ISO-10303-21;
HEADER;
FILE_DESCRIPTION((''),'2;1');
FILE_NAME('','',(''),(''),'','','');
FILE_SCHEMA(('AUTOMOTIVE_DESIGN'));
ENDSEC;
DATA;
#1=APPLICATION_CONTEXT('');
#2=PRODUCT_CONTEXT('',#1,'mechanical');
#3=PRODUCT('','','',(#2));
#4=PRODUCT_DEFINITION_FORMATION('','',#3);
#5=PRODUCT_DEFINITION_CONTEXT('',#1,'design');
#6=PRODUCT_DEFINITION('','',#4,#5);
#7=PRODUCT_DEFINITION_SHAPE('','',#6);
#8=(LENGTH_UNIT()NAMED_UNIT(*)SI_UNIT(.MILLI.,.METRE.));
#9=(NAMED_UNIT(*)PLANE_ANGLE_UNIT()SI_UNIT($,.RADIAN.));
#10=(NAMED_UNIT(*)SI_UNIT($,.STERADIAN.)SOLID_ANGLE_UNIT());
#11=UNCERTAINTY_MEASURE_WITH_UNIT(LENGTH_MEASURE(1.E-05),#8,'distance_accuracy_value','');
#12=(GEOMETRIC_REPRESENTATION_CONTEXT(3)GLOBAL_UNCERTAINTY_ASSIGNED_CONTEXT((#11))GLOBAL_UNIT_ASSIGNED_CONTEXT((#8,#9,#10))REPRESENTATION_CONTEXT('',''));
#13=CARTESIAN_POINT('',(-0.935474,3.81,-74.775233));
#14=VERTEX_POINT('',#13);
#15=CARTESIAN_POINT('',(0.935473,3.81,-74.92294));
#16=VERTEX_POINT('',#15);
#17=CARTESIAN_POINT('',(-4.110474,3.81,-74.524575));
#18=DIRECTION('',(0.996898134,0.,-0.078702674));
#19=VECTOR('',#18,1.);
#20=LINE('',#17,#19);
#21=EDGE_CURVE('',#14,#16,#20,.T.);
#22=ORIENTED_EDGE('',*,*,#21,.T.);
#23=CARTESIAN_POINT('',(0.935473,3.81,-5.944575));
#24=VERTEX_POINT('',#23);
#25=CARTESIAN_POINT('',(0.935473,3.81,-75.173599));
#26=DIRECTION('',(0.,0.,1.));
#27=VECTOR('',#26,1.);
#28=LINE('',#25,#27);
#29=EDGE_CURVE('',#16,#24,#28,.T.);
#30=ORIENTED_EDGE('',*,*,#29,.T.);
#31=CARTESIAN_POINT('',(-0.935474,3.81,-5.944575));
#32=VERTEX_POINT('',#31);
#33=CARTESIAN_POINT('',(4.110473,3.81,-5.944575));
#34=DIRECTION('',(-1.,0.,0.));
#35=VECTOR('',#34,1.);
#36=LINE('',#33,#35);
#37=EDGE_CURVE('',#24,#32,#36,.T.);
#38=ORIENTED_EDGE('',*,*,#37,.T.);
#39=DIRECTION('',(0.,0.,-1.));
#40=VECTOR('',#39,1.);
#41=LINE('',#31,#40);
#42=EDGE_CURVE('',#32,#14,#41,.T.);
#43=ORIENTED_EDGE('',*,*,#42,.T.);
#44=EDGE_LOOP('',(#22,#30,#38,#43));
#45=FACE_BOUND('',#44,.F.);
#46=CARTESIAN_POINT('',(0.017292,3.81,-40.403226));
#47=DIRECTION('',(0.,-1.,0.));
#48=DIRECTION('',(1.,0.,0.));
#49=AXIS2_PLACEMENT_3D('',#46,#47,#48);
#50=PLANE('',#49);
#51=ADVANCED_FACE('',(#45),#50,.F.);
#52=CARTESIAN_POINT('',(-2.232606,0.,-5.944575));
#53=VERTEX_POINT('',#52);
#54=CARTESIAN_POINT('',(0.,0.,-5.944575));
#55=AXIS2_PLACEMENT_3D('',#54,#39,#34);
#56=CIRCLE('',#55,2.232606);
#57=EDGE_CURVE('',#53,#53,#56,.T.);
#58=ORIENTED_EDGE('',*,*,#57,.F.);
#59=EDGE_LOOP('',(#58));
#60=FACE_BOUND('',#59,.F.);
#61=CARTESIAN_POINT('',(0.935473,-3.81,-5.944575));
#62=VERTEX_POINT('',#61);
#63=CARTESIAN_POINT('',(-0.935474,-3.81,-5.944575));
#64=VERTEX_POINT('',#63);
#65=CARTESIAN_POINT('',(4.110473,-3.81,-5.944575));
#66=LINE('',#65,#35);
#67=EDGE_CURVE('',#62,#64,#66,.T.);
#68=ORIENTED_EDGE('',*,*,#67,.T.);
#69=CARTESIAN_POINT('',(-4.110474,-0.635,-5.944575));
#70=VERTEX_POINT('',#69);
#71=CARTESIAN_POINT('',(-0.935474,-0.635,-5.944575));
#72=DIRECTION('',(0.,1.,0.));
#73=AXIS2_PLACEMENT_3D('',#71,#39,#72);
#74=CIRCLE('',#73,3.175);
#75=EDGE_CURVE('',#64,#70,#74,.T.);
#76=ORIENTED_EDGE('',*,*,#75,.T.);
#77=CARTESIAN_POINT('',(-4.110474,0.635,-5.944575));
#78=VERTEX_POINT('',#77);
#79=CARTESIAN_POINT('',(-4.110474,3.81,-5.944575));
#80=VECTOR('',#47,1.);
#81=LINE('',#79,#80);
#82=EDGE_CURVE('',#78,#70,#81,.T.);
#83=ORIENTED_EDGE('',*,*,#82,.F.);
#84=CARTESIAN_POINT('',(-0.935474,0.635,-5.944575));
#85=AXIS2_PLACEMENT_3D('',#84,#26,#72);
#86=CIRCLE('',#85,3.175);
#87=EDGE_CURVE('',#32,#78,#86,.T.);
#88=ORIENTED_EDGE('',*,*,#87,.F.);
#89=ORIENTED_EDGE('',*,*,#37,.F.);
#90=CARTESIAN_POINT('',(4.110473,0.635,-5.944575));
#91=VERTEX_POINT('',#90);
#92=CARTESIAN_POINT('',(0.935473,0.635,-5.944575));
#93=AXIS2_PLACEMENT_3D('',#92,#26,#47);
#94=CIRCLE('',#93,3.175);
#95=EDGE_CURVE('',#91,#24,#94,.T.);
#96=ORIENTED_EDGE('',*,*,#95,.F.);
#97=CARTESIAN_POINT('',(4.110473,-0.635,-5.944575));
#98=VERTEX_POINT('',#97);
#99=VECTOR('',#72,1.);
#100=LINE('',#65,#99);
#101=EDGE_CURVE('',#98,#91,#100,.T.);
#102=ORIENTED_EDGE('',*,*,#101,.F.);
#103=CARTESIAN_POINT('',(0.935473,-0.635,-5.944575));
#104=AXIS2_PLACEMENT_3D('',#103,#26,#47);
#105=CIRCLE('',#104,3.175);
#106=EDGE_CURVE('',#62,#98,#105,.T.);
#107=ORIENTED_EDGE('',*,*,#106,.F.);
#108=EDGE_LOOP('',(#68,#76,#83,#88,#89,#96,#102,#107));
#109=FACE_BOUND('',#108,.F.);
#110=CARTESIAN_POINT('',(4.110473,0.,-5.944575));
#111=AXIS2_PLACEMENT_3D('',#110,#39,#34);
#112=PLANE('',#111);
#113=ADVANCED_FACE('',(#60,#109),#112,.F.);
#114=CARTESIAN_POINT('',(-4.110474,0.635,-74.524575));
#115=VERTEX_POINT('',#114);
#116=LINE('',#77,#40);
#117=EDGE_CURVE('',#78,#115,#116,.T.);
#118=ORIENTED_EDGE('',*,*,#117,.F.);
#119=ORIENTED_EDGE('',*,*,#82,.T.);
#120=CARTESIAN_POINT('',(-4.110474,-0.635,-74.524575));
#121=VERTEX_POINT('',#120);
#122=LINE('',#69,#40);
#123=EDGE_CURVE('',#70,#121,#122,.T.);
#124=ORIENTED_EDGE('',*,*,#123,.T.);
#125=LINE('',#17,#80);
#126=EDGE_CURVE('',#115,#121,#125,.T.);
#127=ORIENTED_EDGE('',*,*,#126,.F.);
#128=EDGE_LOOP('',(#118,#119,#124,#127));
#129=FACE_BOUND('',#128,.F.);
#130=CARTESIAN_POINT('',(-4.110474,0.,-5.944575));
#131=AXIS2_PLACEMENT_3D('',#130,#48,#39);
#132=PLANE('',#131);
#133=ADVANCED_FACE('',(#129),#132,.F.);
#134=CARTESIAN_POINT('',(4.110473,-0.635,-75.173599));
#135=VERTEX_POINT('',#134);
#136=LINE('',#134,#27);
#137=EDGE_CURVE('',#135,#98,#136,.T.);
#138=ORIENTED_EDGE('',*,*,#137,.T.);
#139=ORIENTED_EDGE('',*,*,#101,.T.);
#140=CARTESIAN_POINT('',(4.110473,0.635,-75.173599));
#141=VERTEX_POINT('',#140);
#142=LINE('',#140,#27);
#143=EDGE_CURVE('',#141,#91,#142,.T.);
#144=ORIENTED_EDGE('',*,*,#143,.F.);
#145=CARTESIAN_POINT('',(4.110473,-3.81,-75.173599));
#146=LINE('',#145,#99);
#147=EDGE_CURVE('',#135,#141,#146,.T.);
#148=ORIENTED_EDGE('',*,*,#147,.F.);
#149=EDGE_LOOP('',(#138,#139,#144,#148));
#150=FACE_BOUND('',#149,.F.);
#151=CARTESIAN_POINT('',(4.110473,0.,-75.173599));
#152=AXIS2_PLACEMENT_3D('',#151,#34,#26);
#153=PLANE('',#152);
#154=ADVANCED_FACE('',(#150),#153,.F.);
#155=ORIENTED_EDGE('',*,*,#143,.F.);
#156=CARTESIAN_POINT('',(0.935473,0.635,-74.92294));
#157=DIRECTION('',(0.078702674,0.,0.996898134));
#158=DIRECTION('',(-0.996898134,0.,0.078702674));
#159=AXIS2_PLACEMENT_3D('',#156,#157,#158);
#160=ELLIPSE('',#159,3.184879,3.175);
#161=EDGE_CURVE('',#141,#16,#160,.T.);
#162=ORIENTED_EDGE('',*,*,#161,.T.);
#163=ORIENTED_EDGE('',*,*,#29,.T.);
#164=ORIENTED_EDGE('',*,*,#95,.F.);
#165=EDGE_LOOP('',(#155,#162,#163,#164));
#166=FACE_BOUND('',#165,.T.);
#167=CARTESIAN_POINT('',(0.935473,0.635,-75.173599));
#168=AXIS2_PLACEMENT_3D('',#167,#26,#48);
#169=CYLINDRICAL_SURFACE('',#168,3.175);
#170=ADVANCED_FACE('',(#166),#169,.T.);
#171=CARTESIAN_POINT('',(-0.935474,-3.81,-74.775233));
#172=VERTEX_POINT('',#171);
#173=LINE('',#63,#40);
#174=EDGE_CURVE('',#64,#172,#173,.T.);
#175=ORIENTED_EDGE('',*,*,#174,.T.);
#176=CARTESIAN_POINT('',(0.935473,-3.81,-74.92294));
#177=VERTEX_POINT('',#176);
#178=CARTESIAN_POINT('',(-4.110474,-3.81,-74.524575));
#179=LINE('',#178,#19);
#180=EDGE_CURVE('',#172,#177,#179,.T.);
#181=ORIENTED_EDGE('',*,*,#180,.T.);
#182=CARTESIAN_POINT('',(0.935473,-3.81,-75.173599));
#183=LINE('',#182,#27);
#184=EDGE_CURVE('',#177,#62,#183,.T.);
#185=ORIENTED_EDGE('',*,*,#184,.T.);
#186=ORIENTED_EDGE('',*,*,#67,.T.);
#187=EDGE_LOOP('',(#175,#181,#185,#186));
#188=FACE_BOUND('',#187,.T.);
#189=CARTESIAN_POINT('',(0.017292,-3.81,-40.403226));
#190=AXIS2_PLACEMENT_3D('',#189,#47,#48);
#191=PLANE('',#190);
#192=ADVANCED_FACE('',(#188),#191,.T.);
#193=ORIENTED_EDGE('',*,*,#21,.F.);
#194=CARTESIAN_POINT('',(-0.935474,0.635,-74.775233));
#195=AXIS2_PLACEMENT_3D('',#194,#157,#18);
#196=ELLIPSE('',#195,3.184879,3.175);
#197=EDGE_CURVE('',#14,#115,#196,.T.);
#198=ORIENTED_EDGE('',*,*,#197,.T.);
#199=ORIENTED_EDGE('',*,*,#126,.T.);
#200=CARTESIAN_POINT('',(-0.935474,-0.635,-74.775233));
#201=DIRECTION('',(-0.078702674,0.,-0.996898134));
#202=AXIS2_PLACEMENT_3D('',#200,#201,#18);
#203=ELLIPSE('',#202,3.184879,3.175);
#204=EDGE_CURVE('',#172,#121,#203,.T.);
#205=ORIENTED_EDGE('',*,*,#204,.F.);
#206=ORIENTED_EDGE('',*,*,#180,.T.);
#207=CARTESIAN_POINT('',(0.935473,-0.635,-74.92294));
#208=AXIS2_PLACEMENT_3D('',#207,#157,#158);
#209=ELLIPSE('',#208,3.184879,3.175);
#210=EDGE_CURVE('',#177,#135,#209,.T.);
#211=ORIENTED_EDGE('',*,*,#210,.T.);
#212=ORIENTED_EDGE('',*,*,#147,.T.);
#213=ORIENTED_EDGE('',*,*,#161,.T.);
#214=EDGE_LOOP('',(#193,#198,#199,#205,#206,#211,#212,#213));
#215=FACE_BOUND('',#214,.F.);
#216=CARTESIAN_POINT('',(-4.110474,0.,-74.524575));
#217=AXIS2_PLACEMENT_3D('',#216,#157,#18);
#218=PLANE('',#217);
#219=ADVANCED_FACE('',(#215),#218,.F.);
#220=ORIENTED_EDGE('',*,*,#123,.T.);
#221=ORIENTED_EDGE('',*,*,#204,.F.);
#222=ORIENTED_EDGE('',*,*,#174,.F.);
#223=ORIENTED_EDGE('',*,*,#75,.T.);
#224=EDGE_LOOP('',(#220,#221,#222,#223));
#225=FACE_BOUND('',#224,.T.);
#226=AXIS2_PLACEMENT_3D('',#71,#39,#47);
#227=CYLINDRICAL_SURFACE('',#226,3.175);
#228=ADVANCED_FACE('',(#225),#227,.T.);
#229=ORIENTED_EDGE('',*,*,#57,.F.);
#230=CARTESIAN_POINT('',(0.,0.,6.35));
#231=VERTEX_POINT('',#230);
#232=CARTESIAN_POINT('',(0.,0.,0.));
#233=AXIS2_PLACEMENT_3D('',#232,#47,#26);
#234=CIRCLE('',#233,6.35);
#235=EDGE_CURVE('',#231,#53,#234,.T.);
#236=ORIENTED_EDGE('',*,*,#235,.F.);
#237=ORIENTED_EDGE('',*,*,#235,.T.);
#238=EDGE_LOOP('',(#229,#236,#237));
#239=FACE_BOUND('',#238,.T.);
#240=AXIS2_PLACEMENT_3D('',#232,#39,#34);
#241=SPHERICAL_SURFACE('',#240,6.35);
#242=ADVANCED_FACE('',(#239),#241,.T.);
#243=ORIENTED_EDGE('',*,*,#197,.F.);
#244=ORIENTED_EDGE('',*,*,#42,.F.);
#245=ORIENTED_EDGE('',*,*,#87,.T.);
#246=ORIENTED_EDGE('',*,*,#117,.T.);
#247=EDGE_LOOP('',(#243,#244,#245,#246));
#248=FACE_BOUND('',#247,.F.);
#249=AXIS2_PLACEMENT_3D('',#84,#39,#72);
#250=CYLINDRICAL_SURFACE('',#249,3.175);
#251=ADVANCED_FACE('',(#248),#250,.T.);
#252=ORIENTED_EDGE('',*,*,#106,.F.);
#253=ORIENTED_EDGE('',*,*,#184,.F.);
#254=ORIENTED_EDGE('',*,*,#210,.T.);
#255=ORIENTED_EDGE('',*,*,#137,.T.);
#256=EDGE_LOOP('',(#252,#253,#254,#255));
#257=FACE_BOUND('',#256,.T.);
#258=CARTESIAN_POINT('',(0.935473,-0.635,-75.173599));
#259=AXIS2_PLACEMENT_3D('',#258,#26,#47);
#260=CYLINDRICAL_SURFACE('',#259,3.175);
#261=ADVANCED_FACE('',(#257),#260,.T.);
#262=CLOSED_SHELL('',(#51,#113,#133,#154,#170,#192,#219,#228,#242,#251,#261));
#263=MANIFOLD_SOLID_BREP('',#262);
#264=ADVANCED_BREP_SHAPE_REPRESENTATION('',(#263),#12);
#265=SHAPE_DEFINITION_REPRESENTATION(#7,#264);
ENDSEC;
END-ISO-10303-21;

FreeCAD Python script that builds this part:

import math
import FreeCAD as App
import Part
import Sketcher
from FreeCAD import Vector
Q = App.Units.Quantity


def edges_at(feature, points):
    """Names of the edges that pass closest to the given points."""
    edges = feature.Shape.Edges
    near = lambda p: min(range(len(edges)), key=lambda i: edges[i].distToShape(Part.Vertex(*p))[0])
    return sorted({f"Edge{near(p) + 1}" for p in points})

doc = App.newDocument("Part")
body = doc.addObject("PartDesign::Body", "Body")

# Sketch on XZ plane
sketch1 = body.newObject("Sketcher::SketchObject", "Sketch")
sketch1.AttachmentSupport = (doc.getObject("XZ_Plane"), [""])
sketch1.MapMode = "FlatFace"
sketch1.addGeometry(Part.LineSegment(Vector(0, -6, 0), Vector(0, 6, 0)), False)
sketch1.addGeometry(Part.ArcOfCircle(Part.Circle(Vector(0, 0, 0), Vector(0, 0, 1), 6), math.radians(90), math.radians(270)), False)
sketch1.addConstraint(Sketcher.Constraint("Coincident", 0, 1, 1, 2))
sketch1.addConstraint(Sketcher.Constraint("Coincident", 1, 1, 0, 2))
sketch1.addConstraint(Sketcher.Constraint("Vertical", 0))
sketch1.addConstraint(Sketcher.Constraint("Coincident", 1, 3, -1, 1))
sketch1.addConstraint(Sketcher.Constraint("PointOnObject", 0, 1, -2))
sketch1.addConstraint(Sketcher.Constraint("Radius", 1, Q("0.25 in")))
revolution = body.newObject("PartDesign::Revolution", "Revolution")
revolution.Profile = sketch1
revolution.ReferenceAxis = (sketch1, ["V_Axis"])
revolution.Angle = 360

# Sketch on XZ plane
sketch2 = body.newObject("Sketcher::SketchObject", "Sketch001")
sketch2.AttachmentSupport = (doc.getObject("XZ_Plane"), [""])
sketch2.MapMode = "FlatFace"
sketch2.addGeometry(Part.LineSegment(Vector(4, -6, 0), Vector(-4, -6, 0)), False)
sketch2.addGeometry(Part.LineSegment(Vector(-4, -6, 0), Vector(-4, -75, 0)), False)
sketch2.addGeometry(Part.LineSegment(Vector(-4, -75, 0), Vector(4, -75, 0)), False)
sketch2.addGeometry(Part.LineSegment(Vector(4, -75, 0), Vector(4, -6, 0)), False)
sketch2.addConstraint(Sketcher.Constraint("Coincident", 0, 2, 1, 1))
sketch2.addConstraint(Sketcher.Constraint("Coincident", 1, 2, 2, 1))
sketch2.addConstraint(Sketcher.Constraint("Coincident", 2, 2, 3, 1))
sketch2.addConstraint(Sketcher.Constraint("Coincident", 3, 2, 0, 1))
sketch2.addConstraint(Sketcher.Constraint("Horizontal", 0))
sketch2.addConstraint(Sketcher.Constraint("Vertical", 1))
sketch2.addConstraint(Sketcher.Constraint("Vertical", 3))
sketch2.addConstraint(Sketcher.Constraint("DistanceY", 1, 2, 1, 1, Q("2.7 in")))
sketch2.addConstraint(Sketcher.Constraint("DistanceY", 2, 2, -1, 1, Q("75.173599 mm")))
sketch2.addConstraint(Sketcher.Constraint("DistanceX", 0, 2, 0, 1, Q("8.220947 mm")))
sketch2.addConstraint(Sketcher.Constraint("DistanceY", 3, 1, 3, 2, Q("69.229024 mm")))
sketch2.addConstraint(Sketcher.Constraint("DistanceX", 0, 2, -1, 1, Q("4.110474 mm")))
pad1 = body.newObject("PartDesign::Pad", "Pad")
pad1.Profile = sketch2
pad1.Type = "TwoLengths"
pad1.Length = Q("0.15 in")
pad1.Length2 = Q("0.15 in")
pad1.Reversed = True
doc.recompute()

fillet = body.newObject("PartDesign::Fillet", "Fillet")
fillet.Base = (pad1, edges_at(pad1, [
    (4.11, -3.81, -40.559),
    (4.11, 3.81, -40.559),
    (-4.11, -3.81, -40.235),
    (-4.11, 3.81, -40.235),
]))
fillet.Radius = Q("0.125 in")

doc.recompute()
